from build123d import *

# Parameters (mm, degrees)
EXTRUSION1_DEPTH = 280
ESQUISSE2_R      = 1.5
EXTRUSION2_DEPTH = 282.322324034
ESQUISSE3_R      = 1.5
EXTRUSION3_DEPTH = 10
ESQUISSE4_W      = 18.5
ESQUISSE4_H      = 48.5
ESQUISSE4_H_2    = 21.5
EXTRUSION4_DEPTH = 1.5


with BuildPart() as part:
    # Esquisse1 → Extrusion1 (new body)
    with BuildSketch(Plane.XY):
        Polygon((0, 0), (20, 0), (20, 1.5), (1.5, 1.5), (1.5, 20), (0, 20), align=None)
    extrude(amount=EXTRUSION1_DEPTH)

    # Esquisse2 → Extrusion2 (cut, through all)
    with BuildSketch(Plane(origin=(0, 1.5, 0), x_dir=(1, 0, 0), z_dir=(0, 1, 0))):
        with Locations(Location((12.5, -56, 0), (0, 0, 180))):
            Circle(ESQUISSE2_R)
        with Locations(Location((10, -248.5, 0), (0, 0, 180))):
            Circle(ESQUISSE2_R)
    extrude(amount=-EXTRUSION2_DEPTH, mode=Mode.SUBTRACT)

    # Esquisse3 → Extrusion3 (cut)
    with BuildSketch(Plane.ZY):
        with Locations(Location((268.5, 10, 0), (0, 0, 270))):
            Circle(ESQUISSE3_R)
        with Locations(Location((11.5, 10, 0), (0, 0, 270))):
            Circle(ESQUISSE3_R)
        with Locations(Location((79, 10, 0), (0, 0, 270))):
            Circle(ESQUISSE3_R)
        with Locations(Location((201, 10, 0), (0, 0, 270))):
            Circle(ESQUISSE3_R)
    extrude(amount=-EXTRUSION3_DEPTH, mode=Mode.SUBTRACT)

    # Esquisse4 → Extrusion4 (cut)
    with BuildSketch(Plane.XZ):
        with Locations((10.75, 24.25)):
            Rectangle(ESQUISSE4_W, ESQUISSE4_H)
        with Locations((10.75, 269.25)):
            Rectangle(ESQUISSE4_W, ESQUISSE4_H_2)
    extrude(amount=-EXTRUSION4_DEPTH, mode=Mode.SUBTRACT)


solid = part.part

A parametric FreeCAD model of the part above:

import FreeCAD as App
import Part
import Sketcher

V = App.Vector
Q = App.Units.Quantity


def add_polygon(sketch, points):
    """Adds a closed chain of lines whose ends are joined by coincident constraints."""
    first, n = sketch.GeometryCount, len(points)
    for a, b in zip(points, points[1:] + points[:1]):
        sketch.addGeometry(Part.LineSegment(App.Vector(*a, 0), App.Vector(*b, 0)), False)
    for i in range(n):
        sketch.addConstraint(Sketcher.Constraint("Coincident", first + i, 2, first + (i + 1) % n, 1))

doc = App.newDocument("Part")
body = doc.addObject("PartDesign::Body", "Body")

sketch1 = body.newObject("Sketcher::SketchObject", "Sketch")
sketch1.AttachmentSupport = (doc.getObject("XY_Plane"), [""])
sketch1.MapMode = "FlatFace"
add_polygon(sketch1, [(0, 0), (20, 0), (20, 1.5), (1.5, 1.5), (1.5, 20), (0, 20)])
sketch1.addConstraint([
    Sketcher.Constraint("Horizontal", 0),
    Sketcher.Constraint("Vertical", 1),
    Sketcher.Constraint("Horizontal", 2),
    Sketcher.Constraint("Vertical", 3),
    Sketcher.Constraint("Horizontal", 4),
    Sketcher.Constraint("Vertical", 5),
    Sketcher.Constraint("Coincident", 5, 2, -1, 1),
    Sketcher.Constraint("Equal", 4, 1),
    Sketcher.Constraint("Equal", 2, 3),
    Sketcher.Constraint("DistanceX", 0, 1, 0, 2, Q("20 mm")),
    Sketcher.Constraint("DistanceX", 2, 2, 2, 1, Q("18.5 mm")),
])
pad1 = body.newObject("PartDesign::Pad", "Pad")
pad1.Profile = sketch1
pad1.Length = 280

sketch2 = body.newObject("Sketcher::SketchObject", "Sketch001")
sketch2.AttachmentSupport = (doc.getObject("XZ_Plane"), [""])
sketch2.MapMode = "FlatFace"
sketch2.AttachmentOffset = App.Placement(V(0, 0, -1.5), App.Rotation())
sketch2.addGeometry([
    Part.Circle(V(12.5, 56, 0), V(0, 0, 1), 1.5),
    Part.Circle(V(10, 248.5, 0), V(0, 0, 1), 1.5),
], False)
sketch2.addConstraint([
    Sketcher.Constraint("Equal", 0, 1),
    Sketcher.Constraint("Diameter", 0, Q("3 mm")),
    Sketcher.Constraint("DistanceY", -1, 1, 0, 3, Q("56 mm")),
    Sketcher.Constraint("DistanceX", -1, 1, 1, 3, Q("10 mm")),
    Sketcher.Constraint("DistanceX", -1, 1, 0, 3, Q("12.5 mm")),
    Sketcher.Constraint("DistanceY", -1, 1, 1, 3, Q("248.5 mm")),
])
pocket1 = body.newObject("PartDesign::Pocket", "Pocket")
pocket1.Profile = sketch2
pocket1.Type = "ThroughAll"
pocket1.Reversed = True

sketch3 = body.newObject("Sketcher::SketchObject", "Sketch002")
sketch3.AttachmentSupport = (doc.getObject("YZ_Plane"), [""])
sketch3.MapMode = "FlatFace"
sketch3.addGeometry([
    Part.Circle(V(10, 268.5, 0), V(0, 0, 1), 1.5),
    Part.Circle(V(10, 11.5, 0), V(0, 0, 1), 1.5),
    Part.Circle(V(10, 79, 0), V(0, 0, 1), 1.5),
    Part.Circle(V(10, 201, 0), V(0, 0, 1), 1.5),
], False)
sketch3.addConstraint([
    Sketcher.Constraint("Equal", 0, 1),
    Sketcher.Constraint("Equal", 1, 2),
    Sketcher.Constraint("Equal", 2, 3),
    Sketcher.Constraint("Vertical", 0, 3, 1, 3),
    Sketcher.Constraint("Vertical", 1, 3, 2, 3),
    Sketcher.Constraint("Vertical", 2, 3, 3, 3),
    Sketcher.Constraint("Diameter", 0, Q("3 mm")),
    Sketcher.Constraint("DistanceX", -1, 1, 0, 3, Q("10 mm")),
    Sketcher.Constraint("DistanceY", -1, 1, 2, 3, Q("79 mm")),
    Sketcher.Constraint("DistanceY", -1, 1, 3, 3, Q("201 mm")),
    Sketcher.Constraint("DistanceY", 1, 3, 0, 3, Q("257 mm")),
    Sketcher.Constraint("DistanceY", -1, 1, 0, 3, Q("268.5 mm")),
])
pocket2 = body.newObject("PartDesign::Pocket", "Pocket001")
pocket2.Profile = sketch3
pocket2.Length = 10
pocket2.Reversed = True

sketch4 = body.newObject("Sketcher::SketchObject", "Sketch003")
sketch4.AttachmentSupport = (doc.getObject("XZ_Plane"), [""])
sketch4.MapMode = "FlatFace"
add_polygon(sketch4, [(2, 48), (2, 0), (20, 0), (20, 48)])
add_polygon(sketch4, [(2, 280), (2, 258), (20, 258), (20, 280)])
sketch4.addConstraint([
    Sketcher.Constraint("Vertical", 0),
    Sketcher.Constraint("Horizontal", 1),
    Sketcher.Constraint("Vertical", 2),
    Sketcher.Constraint("Horizontal", 3),
    Sketcher.Constraint("Vertical", 4),
    Sketcher.Constraint("Horizontal", 5),
    Sketcher.Constraint("Vertical", 6),
    Sketcher.Constraint("Horizontal", 7),
    Sketcher.Constraint("PointOnObject", 0, 2, -1),
    Sketcher.Constraint("Vertical", 3, 2, 4, 2),
    Sketcher.Constraint("Vertical", 2, 2, 5, 2),
    Sketcher.Constraint("DistanceX", 1, 1, 1, 2, Q("18.5 mm")),
    Sketcher.Constraint("DistanceY", 0, 2, 0, 1, Q("48.5 mm")),
    Sketcher.Constraint("DistanceY", 4, 2, 4, 1, Q("21.5 mm")),
    Sketcher.Constraint("DistanceX", -1, 1, 1, 2, Q("20 mm")),
    Sketcher.Constraint("DistanceY", -1, 1, 6, 2, Q("280 mm")),
])
pocket3 = body.newObject("PartDesign::Pocket", "Pocket002")
pocket3.Profile = sketch4
pocket3.Length = 1.5

doc.recompute()
